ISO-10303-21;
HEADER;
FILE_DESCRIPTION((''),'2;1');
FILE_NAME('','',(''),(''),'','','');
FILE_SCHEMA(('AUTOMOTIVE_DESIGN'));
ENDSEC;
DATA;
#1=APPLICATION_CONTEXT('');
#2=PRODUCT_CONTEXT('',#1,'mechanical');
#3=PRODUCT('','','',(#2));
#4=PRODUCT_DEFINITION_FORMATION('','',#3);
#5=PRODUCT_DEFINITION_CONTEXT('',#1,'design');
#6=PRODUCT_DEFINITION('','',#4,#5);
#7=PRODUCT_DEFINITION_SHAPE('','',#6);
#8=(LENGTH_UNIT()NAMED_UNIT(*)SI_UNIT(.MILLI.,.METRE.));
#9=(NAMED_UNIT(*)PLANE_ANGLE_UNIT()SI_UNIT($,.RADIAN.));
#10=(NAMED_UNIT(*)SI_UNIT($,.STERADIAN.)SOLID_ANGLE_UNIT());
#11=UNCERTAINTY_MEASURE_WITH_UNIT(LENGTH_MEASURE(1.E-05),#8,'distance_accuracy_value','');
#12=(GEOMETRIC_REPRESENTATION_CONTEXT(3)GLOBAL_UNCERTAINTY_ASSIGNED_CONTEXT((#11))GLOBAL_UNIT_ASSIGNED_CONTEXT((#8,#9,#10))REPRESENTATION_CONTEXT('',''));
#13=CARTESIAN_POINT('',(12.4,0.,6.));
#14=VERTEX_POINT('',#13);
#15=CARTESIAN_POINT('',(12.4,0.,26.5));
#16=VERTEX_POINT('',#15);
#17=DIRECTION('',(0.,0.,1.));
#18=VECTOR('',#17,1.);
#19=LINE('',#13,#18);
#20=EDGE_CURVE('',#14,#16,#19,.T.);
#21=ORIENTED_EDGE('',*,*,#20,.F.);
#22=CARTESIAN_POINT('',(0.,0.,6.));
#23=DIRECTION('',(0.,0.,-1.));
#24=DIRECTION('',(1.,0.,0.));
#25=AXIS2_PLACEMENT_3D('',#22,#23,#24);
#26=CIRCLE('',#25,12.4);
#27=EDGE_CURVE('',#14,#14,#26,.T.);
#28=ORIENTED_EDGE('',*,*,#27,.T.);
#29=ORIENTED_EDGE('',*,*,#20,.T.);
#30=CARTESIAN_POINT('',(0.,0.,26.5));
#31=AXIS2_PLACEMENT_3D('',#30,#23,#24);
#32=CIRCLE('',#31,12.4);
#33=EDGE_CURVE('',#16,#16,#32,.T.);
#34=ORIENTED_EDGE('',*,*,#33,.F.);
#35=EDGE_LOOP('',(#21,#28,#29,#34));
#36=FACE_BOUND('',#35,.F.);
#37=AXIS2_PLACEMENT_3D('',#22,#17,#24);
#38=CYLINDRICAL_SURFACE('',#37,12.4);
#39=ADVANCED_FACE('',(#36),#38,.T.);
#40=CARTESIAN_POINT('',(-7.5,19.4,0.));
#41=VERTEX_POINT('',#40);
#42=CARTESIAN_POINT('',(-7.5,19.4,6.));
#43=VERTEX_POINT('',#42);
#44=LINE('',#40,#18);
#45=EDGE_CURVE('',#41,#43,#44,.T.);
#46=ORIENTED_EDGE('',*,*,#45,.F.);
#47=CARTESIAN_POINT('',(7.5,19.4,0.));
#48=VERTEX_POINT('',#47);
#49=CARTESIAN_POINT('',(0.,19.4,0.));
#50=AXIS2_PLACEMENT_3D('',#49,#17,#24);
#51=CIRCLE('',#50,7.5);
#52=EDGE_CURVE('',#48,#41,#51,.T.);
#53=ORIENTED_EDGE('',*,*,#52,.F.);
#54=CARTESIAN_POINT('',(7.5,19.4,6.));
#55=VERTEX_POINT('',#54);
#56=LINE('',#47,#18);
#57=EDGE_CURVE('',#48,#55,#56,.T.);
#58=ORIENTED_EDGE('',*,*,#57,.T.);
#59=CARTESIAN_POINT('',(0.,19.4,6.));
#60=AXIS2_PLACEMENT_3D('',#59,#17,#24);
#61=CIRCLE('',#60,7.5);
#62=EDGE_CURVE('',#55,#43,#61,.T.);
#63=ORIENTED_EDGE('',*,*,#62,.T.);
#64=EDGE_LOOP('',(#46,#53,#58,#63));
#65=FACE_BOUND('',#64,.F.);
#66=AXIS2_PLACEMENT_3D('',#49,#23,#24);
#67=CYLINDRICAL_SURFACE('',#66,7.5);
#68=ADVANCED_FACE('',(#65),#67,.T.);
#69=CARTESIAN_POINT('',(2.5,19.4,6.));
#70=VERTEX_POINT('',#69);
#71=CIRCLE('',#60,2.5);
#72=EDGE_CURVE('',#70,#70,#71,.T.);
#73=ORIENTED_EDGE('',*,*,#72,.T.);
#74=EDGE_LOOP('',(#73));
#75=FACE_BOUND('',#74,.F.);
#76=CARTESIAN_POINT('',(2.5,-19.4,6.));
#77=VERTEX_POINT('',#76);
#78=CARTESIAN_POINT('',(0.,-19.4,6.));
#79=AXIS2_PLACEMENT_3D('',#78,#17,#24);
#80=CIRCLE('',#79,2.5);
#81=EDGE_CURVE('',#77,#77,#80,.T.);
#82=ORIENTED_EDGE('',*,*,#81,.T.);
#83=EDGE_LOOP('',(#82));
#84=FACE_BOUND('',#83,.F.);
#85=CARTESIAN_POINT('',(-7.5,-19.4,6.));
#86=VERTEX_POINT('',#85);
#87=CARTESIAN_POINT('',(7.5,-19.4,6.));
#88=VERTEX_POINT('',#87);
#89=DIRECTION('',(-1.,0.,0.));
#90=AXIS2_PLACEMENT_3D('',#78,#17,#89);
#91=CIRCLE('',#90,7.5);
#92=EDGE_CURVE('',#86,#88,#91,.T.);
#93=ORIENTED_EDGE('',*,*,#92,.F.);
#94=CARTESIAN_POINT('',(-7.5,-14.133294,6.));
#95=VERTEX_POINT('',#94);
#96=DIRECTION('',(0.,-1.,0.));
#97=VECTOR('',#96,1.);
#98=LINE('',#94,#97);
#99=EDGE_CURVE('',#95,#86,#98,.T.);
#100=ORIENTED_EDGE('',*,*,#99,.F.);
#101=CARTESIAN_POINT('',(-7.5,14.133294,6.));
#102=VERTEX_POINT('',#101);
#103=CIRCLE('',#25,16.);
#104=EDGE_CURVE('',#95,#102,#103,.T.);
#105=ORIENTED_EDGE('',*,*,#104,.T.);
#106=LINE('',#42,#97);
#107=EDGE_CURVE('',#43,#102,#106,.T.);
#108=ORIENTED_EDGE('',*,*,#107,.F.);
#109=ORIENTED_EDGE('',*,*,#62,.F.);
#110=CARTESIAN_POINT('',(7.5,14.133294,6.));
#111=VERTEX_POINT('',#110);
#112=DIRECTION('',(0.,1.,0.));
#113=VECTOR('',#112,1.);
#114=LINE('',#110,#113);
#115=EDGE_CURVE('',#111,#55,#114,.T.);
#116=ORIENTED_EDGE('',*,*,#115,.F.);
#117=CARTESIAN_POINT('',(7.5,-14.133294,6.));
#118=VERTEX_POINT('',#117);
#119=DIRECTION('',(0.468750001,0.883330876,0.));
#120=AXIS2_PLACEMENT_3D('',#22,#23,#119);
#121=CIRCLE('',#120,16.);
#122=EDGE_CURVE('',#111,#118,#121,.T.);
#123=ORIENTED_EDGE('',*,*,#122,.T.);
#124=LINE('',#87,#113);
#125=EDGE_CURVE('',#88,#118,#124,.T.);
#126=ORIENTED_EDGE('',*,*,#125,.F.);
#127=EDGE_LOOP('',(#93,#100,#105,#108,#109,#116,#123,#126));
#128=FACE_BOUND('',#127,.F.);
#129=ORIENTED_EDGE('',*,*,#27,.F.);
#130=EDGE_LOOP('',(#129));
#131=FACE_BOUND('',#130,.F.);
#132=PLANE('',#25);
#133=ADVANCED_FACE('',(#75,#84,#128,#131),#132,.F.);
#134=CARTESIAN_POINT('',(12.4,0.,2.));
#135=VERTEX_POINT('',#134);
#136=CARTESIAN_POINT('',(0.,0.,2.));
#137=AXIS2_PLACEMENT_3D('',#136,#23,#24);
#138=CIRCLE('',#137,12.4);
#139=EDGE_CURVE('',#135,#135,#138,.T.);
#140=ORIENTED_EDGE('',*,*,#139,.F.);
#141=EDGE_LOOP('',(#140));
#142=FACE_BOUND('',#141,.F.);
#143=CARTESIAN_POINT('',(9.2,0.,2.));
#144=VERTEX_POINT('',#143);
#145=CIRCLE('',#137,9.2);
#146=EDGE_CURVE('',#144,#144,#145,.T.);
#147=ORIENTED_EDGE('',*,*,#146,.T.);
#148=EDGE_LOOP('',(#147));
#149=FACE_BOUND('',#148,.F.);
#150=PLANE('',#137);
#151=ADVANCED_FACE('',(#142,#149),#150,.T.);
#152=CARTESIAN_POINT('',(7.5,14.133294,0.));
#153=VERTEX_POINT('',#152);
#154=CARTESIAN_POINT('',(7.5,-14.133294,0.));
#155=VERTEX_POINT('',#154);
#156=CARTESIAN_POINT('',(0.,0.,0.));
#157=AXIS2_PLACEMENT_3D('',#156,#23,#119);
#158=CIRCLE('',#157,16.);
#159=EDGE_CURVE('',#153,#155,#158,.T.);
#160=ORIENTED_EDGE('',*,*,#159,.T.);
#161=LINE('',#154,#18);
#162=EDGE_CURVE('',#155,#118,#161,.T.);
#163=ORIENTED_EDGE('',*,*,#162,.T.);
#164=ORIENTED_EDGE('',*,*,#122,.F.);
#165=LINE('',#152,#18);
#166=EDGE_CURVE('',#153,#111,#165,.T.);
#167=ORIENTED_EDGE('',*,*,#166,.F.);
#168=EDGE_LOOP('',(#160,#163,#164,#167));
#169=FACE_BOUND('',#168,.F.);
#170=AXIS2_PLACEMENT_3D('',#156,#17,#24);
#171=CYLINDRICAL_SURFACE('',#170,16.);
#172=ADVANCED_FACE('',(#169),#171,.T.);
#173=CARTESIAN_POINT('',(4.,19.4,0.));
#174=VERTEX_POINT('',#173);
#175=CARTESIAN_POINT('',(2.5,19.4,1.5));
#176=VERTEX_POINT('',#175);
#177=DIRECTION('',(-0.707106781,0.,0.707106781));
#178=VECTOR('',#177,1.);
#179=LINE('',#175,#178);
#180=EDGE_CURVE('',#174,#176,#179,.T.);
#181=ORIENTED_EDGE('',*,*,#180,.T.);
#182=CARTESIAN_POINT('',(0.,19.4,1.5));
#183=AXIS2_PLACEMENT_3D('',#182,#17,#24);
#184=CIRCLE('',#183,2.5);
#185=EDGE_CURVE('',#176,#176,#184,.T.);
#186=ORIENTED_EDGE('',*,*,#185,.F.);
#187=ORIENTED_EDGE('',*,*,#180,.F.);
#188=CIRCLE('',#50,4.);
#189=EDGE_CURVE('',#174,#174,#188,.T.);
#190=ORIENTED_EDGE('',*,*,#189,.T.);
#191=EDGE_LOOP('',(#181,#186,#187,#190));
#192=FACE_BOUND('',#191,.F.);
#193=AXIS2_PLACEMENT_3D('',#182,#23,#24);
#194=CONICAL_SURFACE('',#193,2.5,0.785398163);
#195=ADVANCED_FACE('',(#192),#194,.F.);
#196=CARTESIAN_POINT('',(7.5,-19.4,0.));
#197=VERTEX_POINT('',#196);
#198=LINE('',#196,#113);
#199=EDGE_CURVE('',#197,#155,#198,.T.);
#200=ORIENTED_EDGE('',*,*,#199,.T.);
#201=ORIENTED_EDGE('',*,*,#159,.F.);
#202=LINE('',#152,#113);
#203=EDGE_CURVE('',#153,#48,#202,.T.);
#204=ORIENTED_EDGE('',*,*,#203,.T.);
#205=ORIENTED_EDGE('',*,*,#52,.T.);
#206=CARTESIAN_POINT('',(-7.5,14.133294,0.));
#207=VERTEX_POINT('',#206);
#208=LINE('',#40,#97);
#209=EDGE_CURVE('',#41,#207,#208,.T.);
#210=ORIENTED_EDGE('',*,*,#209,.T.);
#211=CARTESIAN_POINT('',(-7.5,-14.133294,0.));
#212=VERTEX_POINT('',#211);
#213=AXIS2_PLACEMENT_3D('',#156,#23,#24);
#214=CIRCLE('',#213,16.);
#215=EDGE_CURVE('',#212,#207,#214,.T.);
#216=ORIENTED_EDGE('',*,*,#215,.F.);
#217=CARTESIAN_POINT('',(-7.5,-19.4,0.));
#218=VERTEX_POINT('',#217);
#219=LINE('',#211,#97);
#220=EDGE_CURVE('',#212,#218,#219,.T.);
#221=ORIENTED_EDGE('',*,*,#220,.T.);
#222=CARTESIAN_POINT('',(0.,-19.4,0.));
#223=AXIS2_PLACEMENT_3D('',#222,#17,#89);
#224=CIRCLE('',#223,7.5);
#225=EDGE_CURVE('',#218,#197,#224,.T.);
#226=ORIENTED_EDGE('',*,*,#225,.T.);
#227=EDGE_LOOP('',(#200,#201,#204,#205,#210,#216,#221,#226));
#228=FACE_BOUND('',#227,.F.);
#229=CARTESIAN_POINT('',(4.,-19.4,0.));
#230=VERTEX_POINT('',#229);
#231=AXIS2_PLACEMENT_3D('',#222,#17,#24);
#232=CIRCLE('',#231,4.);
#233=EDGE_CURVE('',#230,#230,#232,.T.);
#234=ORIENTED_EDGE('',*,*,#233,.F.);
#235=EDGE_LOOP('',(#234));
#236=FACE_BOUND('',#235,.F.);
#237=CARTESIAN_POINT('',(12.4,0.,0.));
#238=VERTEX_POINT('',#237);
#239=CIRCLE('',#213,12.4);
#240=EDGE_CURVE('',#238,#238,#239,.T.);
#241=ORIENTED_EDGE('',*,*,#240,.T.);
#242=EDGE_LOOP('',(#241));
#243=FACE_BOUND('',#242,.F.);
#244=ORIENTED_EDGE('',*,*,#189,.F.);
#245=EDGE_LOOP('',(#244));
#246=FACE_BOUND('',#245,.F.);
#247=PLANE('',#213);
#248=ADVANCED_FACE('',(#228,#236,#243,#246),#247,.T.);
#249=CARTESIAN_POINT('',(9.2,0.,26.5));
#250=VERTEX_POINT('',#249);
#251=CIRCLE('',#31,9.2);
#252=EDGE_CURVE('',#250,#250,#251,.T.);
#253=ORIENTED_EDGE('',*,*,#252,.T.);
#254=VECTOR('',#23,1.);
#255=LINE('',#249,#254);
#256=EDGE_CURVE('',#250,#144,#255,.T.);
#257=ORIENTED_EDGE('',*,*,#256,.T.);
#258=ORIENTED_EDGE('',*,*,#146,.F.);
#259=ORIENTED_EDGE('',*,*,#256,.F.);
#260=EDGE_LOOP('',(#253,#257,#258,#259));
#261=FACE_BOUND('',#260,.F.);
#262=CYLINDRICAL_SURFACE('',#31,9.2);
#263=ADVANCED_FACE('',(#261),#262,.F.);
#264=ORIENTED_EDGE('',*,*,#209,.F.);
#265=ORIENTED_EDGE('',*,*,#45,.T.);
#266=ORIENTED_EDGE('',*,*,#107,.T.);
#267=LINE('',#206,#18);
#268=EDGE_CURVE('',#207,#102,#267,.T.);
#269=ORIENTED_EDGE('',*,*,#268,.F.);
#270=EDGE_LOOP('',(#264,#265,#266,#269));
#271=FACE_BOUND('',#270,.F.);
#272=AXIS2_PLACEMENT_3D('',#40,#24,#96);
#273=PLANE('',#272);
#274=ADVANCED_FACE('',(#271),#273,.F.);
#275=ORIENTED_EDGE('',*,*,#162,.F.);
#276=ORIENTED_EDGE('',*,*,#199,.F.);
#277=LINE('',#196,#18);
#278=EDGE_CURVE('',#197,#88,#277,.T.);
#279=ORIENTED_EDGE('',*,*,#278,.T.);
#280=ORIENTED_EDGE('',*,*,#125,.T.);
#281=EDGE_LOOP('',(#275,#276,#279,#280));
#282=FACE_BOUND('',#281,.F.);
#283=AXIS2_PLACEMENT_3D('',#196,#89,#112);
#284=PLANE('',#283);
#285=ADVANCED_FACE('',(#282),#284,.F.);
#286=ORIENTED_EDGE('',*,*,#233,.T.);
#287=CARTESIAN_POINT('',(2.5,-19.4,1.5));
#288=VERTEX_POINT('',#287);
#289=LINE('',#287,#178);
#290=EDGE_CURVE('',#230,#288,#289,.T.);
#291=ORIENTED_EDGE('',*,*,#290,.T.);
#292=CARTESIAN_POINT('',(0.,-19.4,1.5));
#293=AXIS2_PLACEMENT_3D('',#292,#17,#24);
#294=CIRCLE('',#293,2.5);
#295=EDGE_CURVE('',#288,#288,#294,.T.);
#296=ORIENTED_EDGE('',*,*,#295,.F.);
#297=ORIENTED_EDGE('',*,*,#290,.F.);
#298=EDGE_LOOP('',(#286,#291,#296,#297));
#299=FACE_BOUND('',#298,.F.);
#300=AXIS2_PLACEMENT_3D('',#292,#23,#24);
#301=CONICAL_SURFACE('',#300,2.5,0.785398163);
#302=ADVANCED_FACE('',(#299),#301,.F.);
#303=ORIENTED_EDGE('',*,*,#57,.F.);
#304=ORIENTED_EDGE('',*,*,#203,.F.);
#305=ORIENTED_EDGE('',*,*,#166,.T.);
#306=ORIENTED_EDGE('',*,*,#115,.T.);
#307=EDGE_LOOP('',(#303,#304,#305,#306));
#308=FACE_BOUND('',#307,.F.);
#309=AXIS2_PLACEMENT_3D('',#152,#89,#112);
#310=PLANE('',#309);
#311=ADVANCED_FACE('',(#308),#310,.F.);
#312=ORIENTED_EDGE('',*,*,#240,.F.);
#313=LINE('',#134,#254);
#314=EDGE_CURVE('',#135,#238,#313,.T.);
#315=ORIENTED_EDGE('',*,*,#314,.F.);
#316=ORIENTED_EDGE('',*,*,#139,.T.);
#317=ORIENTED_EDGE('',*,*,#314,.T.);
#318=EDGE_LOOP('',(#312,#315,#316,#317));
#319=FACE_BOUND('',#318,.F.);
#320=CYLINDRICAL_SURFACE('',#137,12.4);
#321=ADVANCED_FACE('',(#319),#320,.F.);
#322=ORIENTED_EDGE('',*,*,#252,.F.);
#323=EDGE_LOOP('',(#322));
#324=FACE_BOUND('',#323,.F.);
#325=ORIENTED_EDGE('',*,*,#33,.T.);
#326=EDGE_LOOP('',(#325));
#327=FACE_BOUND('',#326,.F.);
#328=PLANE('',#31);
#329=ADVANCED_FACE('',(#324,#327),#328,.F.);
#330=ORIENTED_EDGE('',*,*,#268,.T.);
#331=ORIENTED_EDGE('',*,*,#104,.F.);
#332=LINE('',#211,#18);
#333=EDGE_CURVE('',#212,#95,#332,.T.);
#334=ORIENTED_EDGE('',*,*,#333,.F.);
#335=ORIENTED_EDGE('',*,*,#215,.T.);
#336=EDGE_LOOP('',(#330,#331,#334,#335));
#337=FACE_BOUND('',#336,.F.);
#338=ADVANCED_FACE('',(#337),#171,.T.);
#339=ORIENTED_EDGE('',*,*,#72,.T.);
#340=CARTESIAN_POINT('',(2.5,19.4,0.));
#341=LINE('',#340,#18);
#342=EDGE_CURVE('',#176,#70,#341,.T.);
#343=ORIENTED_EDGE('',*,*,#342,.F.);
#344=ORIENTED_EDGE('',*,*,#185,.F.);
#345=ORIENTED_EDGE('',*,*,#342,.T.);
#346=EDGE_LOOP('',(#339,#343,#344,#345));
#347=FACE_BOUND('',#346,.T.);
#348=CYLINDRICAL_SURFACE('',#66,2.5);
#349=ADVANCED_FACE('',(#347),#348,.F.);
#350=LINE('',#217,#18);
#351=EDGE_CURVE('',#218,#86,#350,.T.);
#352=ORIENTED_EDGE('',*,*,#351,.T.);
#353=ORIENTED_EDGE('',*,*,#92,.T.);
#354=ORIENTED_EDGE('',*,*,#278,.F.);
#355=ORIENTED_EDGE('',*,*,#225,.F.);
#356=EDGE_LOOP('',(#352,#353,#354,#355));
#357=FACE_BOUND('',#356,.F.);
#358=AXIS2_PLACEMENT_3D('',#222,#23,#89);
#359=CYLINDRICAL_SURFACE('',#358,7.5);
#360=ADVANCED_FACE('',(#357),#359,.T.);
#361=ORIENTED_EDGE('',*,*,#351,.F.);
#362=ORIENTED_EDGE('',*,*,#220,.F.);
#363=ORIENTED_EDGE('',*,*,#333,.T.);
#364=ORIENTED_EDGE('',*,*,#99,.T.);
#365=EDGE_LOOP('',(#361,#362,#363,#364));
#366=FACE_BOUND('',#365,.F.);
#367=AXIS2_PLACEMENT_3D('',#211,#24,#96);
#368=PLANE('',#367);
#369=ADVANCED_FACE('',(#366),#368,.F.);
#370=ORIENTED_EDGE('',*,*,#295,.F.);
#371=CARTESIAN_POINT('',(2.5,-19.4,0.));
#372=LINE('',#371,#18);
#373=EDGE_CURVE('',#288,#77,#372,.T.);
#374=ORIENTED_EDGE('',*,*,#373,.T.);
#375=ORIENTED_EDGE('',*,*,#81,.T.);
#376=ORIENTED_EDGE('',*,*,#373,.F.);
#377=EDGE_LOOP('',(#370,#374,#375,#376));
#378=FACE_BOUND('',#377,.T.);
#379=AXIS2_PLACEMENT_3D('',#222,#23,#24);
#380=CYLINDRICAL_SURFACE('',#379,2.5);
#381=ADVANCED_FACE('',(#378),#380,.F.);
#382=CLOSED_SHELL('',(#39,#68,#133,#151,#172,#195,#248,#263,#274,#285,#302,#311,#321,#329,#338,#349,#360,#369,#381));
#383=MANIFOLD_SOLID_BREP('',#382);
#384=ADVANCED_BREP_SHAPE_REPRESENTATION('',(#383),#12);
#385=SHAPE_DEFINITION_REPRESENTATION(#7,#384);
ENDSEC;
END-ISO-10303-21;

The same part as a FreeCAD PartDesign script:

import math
import FreeCAD as App
import Part
import Sketcher
from FreeCAD import Vector
Q = App.Units.Quantity


def edges_at(feature, points):
    """Names of the edges that pass closest to the given points."""
    edges = feature.Shape.Edges
    near = lambda p: min(range(len(edges)), key=lambda i: edges[i].distToShape(Part.Vertex(*p))[0])
    return sorted({f"Edge{near(p) + 1}" for p in points})


def add_polygon(sketch, points):
    """Adds a closed chain of lines whose ends are joined by coincident constraints."""
    first, n = sketch.GeometryCount, len(points)
    for a, b in zip(points, points[1:] + points[:1]):
        sketch.addGeometry(Part.LineSegment(App.Vector(*a, 0), App.Vector(*b, 0)), False)
    for i in range(n):
        sketch.addConstraint(Sketcher.Constraint("Coincident", first + i, 2, first + (i + 1) % n, 1))

doc = App.newDocument("Part")
body = doc.addObject("PartDesign::Body", "Body")

sketch1 = doc.addObject("Sketcher::SketchObject", "Sketch")
body.addObject(sketch1)
sketch1.AttachmentSupport = (doc.XZ_Plane, [""])
sketch1.MapMode = "FlatFace"
add_polygon(sketch1, [(12.4, 2), (12.4, 0), (16, 0), (16, 6), (12.4, 6), (12.4, 26.5), (9.2, 26.5), (9.2, 2)])
sketch1.addConstraint(Sketcher.Constraint("Vertical", 0))
sketch1.addConstraint(Sketcher.Constraint("Horizontal", 1))
sketch1.addConstraint(Sketcher.Constraint("Vertical", 2))
sketch1.addConstraint(Sketcher.Constraint("Horizontal", 3))
sketch1.addConstraint(Sketcher.Constraint("Vertical", 4))
sketch1.addConstraint(Sketcher.Constraint("Horizontal", 5))
sketch1.addConstraint(Sketcher.Constraint("Vertical", 6))
sketch1.addConstraint(Sketcher.Constraint("Horizontal", 7))
sketch1.addConstraint(Sketcher.Constraint("PointOnObject", 0, 2, -1))
sketch1.addConstraint(Sketcher.Constraint("Vertical", 0, 2, 3, 2))
sketch1.addConstraint(Sketcher.Constraint("DistanceY", 0, 2, 0, 1, Q("2 mm")))
sketch1.addConstraint(Sketcher.Constraint("DistanceY", 2, 1, 2, 2, Q("6 mm")))
sketch1.addConstraint(Sketcher.Constraint("DistanceX", 1, 1, 1, 2, Q("3.6 mm")))
sketch1.addConstraint(Sketcher.Constraint("DistanceX", 5, 2, 5, 1, Q("3.2 mm")))
sketch1.addConstraint(Sketcher.Constraint("DistanceY", 4, 1, 4, 2, Q("20.5 mm")))
sketch1.addConstraint(Sketcher.Constraint("DistanceX", -1, 1, 1, 2, Q("16 mm")))
revolution = doc.addObject("PartDesign::Revolution", "Revolution")
body.addObject(revolution)
revolution.Profile = sketch1
revolution.ReferenceAxis = (sketch1, ["V_Axis"])
revolution.Angle = 360

sketch2 = doc.addObject("Sketcher::SketchObject", "Sketch001")
body.addObject(sketch2)
sketch2.AttachmentSupport = (doc.XY_Plane, [""])
sketch2.MapMode = "FlatFace"
sketch2.addGeometry(Part.LineSegment(Vector(7.5, 14.1, 0), Vector(7.5, 19.4, 0)), False)
sketch2.addGeometry(Part.ArcOfCircle(Part.Circle(Vector(0, 19.4, 0), Vector(0, 0, 1), 7.5), math.radians(0), math.radians(180)), False)
sketch2.addGeometry(Part.LineSegment(Vector(-7.5, 19.4, 0), Vector(-7.5, 14.1, 0)), False)
sketch2.addGeometry(Part.ArcOfCircle(Part.Circle(Vector(0, 0, 0), Vector(0, 0, 1), 16), math.radians(62), math.radians(118)), False)
sketch2.addGeometry(Part.Circle(Vector(0, 19.4, 0), Vector(0, 0, 1), 2.5), False)
sketch2.addGeometry(Part.ArcOfCircle(Part.Circle(Vector(0, 0, 0), Vector(0, 0, 1), 16), math.radians(-118), math.radians(-62)), False)
sketch2.addGeometry(Part.LineSegment(Vector(-7.5, -14.1, 0), Vector(-7.5, -19.4, 0)), False)
sketch2.addGeometry(Part.ArcOfCircle(Part.Circle(Vector(0, -19.4, 0), Vector(0, 0, 1), 7.5), math.radians(180), math.radians(360)), False)
sketch2.addGeometry(Part.LineSegment(Vector(7.5, -19.4, 0), Vector(7.5, -14.1, 0)), False)
sketch2.addGeometry(Part.Circle(Vector(0, -19.4, 0), Vector(0, 0, 1), 2.5), False)
sketch2.addConstraint(Sketcher.Constraint("Tangent", 0, 2, 1, 1))
sketch2.addConstraint(Sketcher.Constraint("Tangent", 1, 2, 2, 1))
sketch2.addConstraint(Sketcher.Constraint("Coincident", 2, 2, 3, 2))
sketch2.addConstraint(Sketcher.Constraint("Coincident", 3, 1, 0, 1))
sketch2.addConstraint(Sketcher.Constraint("Coincident", 5, 1, 6, 1))
sketch2.addConstraint(Sketcher.Constraint("Tangent", 6, 2, 7, 1))
sketch2.addConstraint(Sketcher.Constraint("Tangent", 7, 2, 8, 1))
sketch2.addConstraint(Sketcher.Constraint("Coincident", 8, 2, 5, 2))
sketch2.addConstraint(Sketcher.Constraint("Vertical", 0))
sketch2.addConstraint(Sketcher.Constraint("Vertical", 2))
sketch2.addConstraint(Sketcher.Constraint("Vertical", 6))
sketch2.addConstraint(Sketcher.Constraint("Vertical", 8))
sketch2.addConstraint(Sketcher.Constraint("Coincident", 3, 3, -1, 1))
sketch2.addConstraint(Sketcher.Constraint("Coincident", 5, 3, -1, 1))
sketch2.addConstraint(Sketcher.Constraint("Coincident", 4, 3, 1, 3))
sketch2.addConstraint(Sketcher.Constraint("Coincident", 9, 3, 7, 3))
sketch2.addConstraint(Sketcher.Constraint("Equal", 3, 5))
sketch2.addConstraint(Sketcher.Constraint("Equal", 1, 7))
sketch2.addConstraint(Sketcher.Constraint("Equal", 4, 9))
sketch2.addConstraint(Sketcher.Constraint("Symmetric", 1, 3, 7, 3, -1, 1))
sketch2.addConstraint(Sketcher.Constraint("PointOnObject", 1, 3, -2))
sketch2.addConstraint(Sketcher.Constraint("Diameter", 4, Q("5 mm")))
sketch2.addConstraint(Sketcher.Constraint("Radius", 3, Q("16 mm")))
sketch2.addConstraint(Sketcher.Constraint("Radius", 1, Q("7.5 mm")))
sketch2.addConstraint(Sketcher.Constraint("DistanceY", -1, 1, 1, 3, Q("19.4 mm")))
pad1 = doc.addObject("PartDesign::Pad", "Pad")
body.addObject(pad1)
pad1.Profile = sketch2
pad1.Length = 6
doc.recompute()

chamfer = doc.addObject("PartDesign::Chamfer", "Chamfer")
body.addObject(chamfer)
chamfer.Base = (pad1, edges_at(pad1, [(-2.5, 19.4, 0), (-2.5, -19.4, 0)]))
chamfer.Size = 1.5

doc.recompute()
